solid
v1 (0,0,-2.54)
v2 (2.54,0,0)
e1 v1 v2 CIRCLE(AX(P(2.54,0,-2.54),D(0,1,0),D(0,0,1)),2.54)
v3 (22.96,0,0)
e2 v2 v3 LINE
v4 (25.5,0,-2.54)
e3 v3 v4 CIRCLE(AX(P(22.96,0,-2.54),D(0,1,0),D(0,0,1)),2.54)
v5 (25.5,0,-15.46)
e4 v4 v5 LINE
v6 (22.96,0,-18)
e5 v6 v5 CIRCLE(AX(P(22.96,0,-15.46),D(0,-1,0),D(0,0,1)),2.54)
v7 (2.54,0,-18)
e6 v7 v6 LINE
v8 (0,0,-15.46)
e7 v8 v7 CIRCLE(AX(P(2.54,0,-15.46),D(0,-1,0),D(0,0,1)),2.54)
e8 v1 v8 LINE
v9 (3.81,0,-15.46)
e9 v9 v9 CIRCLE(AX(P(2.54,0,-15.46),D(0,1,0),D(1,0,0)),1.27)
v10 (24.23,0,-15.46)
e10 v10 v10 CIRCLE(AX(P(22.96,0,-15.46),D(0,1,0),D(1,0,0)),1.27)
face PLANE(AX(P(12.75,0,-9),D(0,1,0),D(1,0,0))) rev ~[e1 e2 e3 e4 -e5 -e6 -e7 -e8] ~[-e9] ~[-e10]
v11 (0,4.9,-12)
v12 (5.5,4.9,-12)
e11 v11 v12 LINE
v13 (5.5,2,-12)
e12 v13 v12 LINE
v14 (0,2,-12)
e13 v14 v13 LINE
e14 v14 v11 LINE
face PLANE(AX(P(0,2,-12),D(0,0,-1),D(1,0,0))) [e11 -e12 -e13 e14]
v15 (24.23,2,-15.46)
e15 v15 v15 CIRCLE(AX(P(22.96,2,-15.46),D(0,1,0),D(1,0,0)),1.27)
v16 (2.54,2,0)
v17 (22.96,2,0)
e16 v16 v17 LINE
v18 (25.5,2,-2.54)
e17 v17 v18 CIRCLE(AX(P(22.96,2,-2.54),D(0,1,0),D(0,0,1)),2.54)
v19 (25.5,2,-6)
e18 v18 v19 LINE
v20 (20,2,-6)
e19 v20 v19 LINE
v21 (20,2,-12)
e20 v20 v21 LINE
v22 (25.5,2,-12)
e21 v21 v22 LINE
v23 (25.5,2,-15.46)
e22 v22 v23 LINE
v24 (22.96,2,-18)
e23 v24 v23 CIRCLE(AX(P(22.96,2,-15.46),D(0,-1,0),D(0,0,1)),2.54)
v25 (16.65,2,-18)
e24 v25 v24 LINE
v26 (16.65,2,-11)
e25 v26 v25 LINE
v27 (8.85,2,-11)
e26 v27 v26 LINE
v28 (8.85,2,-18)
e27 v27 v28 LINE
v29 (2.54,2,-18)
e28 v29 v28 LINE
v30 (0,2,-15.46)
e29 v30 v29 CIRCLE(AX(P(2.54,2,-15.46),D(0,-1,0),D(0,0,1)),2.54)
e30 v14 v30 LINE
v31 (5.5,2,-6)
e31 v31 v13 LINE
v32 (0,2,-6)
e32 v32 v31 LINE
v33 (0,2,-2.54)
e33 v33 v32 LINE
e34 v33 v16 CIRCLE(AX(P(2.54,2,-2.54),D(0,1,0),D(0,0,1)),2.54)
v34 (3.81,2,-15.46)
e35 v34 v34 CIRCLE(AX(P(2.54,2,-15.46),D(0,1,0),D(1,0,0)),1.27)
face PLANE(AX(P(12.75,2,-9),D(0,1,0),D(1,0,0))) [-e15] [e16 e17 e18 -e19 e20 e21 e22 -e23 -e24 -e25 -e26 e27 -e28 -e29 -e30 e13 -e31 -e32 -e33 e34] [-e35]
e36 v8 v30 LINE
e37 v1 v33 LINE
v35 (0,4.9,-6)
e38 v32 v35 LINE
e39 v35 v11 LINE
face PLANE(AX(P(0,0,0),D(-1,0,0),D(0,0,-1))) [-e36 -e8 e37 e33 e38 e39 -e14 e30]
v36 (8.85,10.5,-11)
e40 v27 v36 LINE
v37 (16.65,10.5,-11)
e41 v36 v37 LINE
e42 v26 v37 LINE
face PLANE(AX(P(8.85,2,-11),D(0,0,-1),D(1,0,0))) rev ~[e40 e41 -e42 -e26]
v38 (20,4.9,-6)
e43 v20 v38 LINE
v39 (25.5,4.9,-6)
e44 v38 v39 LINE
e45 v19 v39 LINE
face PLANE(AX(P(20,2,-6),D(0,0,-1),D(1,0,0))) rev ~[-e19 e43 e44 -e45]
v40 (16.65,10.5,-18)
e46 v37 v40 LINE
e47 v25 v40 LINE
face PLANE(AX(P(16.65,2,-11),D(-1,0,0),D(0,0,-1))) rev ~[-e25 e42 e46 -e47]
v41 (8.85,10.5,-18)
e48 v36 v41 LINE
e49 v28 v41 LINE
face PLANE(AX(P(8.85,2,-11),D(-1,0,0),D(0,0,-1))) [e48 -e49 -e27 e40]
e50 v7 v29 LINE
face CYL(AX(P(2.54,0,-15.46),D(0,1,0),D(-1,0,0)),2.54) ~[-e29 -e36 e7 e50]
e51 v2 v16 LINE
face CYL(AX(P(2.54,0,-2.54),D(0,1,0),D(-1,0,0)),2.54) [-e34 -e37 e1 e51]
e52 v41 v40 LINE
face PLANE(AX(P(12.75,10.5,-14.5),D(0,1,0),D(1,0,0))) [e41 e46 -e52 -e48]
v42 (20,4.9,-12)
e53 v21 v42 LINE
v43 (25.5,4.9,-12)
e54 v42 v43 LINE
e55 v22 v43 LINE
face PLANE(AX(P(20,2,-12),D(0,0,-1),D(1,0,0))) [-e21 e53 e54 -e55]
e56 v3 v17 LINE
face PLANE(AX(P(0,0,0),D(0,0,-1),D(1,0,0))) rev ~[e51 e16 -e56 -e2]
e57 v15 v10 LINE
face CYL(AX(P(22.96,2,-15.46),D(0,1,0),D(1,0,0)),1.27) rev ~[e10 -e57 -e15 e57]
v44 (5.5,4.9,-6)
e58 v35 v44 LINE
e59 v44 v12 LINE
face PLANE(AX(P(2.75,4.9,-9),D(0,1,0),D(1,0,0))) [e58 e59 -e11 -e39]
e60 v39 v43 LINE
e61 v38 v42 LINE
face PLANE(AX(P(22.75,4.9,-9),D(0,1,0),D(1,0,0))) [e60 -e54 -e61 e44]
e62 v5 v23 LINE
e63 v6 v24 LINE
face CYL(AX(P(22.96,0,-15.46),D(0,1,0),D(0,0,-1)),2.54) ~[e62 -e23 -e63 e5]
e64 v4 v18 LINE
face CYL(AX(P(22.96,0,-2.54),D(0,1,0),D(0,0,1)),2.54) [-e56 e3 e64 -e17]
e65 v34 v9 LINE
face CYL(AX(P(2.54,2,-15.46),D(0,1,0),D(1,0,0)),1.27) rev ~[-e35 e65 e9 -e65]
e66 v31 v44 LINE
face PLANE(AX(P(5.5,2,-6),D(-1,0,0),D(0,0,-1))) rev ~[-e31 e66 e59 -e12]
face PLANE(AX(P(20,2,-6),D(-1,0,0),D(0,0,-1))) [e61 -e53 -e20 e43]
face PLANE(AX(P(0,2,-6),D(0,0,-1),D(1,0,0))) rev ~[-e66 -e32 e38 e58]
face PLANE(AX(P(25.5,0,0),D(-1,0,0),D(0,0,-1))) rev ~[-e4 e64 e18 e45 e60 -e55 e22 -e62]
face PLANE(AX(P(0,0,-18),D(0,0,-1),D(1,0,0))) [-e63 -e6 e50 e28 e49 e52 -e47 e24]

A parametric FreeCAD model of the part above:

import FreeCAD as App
import Part
import Sketcher
from FreeCAD import Vector
Q = App.Units.Quantity


def edges_at(feature, points):
    """Names of the edges that pass closest to the given points."""
    edges = feature.Shape.Edges
    near = lambda p: min(range(len(edges)), key=lambda i: edges[i].distToShape(Part.Vertex(*p))[0])
    return sorted({f"Edge{near(p) + 1}" for p in points})

doc = App.newDocument("Part")
params = doc.addObject("Spreadsheet::Sheet", "Params")
for row, (alias, value) in enumerate([
    ("sketch1_height", "18 mm"),
    ("sketch1_width", "25.5 mm"),
    ("pad1_length", "2 mm"),
    ("sketch2_diameter", "2.54 mm"),
    ("sketch3_height", "6 mm"),
    ("sketch3_width", "5.5 mm"),
    ("pad2_length", "2.9 mm"),
    ("sketch4_height", "7 mm"),
    ("sketch4_width", "7.8 mm"),
    ("pad3_length", "8.5 mm"),
    ("fillet_radius", "2.54 mm"),
], start=1):
    params.set(f"A{row}", alias)
    params.set(f"B{row}", "=" + value)
    params.setAlias(f"B{row}", alias)

body = doc.addObject("PartDesign::Body", "Body")

# Sketch on XZ plane
sketch1 = body.newObject("Sketcher::SketchObject", "Sketch")
sketch1.AttachmentSupport = (doc.getObject("XZ_Plane"), [""])
sketch1.MapMode = "FlatFace"
sketch1.addGeometry([
    Part.LineSegment(Vector(0, -18, 0), Vector(0, 0, 0)),
    Part.LineSegment(Vector(0, 0, 0), Vector(25.5, 0, 0)),
    Part.LineSegment(Vector(25.5, 0, 0), Vector(25.5, -18, 0)),
    Part.LineSegment(Vector(25.5, -18, 0), Vector(0, -18, 0)),
], False)
sketch1.addConstraint([
    Sketcher.Constraint("Coincident", 0, 2, 1, 1),
    Sketcher.Constraint("Coincident", 1, 2, 2, 1),
    Sketcher.Constraint("Coincident", 2, 2, 3, 1),
    Sketcher.Constraint("Coincident", 3, 2, 0, 1),
    Sketcher.Constraint("Vertical", 0),
    Sketcher.Constraint("Horizontal", 1),
    Sketcher.Constraint("Vertical", 2),
    Sketcher.Constraint("Horizontal", 3),
    Sketcher.Constraint("Coincident", 0, 2, -1, 1),
    Sketcher.Constraint("DistanceY", 0, 1, 0, 2, Q("18 mm")),
    Sketcher.Constraint("DistanceX", 1, 1, 1, 2, Q("25.5 mm")),
])
sketch1.setExpression("Constraints[9]", "Params.sketch1_height")
sketch1.setExpression("Constraints[10]", "Params.sketch1_width")
pad1 = body.newObject("PartDesign::Pad", "Pad")
pad1.Profile = sketch1
pad1.setExpression("Length", "Params.pad1_length")
pad1.Reversed = True

# Sketch on XZ plane
sketch2 = body.newObject("Sketcher::SketchObject", "Sketch001")
sketch2.AttachmentSupport = (doc.getObject("XZ_Plane"), [""])
sketch2.MapMode = "FlatFace"
sketch2.AttachmentOffset = App.Placement(Vector(0, 0, -2), App.Rotation())
sketch2.addGeometry([
    Part.Circle(Vector(2.54, -15.46, 0), Vector(0, 0, 1), 1.27),
    Part.Circle(Vector(22.96, -15.46, 0), Vector(0, 0, 1), 1.27),
], False)
sketch2.addConstraint([
    Sketcher.Constraint("Equal", 0, 1),
    Sketcher.Constraint("Horizontal", 0, 3, 1, 3),
    Sketcher.Constraint("Diameter", 0, Q("2.54 mm")),
    Sketcher.Constraint("DistanceX", -1, 1, 0, 3, Q("2.54 mm")),
    Sketcher.Constraint("DistanceY", 0, 3, -1, 1, Q("15.46 mm")),
    Sketcher.Constraint("DistanceX", -1, 1, 1, 3, Q("22.96 mm")),
])
sketch2.setExpression("Constraints[2]", "Params.sketch2_diameter")
pocket1 = body.newObject("PartDesign::Pocket", "Pocket")
pocket1.Profile = sketch2
pocket1.Type = "ThroughAll"
pocket1.Reversed = True

# Sketch on XZ plane
sketch3 = body.newObject("Sketcher::SketchObject", "Sketch002")
sketch3.AttachmentSupport = (doc.getObject("XZ_Plane"), [""])
sketch3.MapMode = "FlatFace"
sketch3.AttachmentOffset = App.Placement(Vector(0, 0, -2), App.Rotation())
sketch3.addGeometry([
    Part.LineSegment(Vector(0, -12, 0), Vector(0, -6, 0)),  # 0
    Part.LineSegment(Vector(0, -6, 0), Vector(5.5, -6, 0)),  # 1
    Part.LineSegment(Vector(5.5, -6, 0), Vector(5.5, -12, 0)),  # 2
    Part.LineSegment(Vector(5.5, -12, 0), Vector(0, -12, 0)),  # 3
    Part.LineSegment(Vector(20, -12, 0), Vector(20, -6, 0)),  # 4
    Part.LineSegment(Vector(20, -6, 0), Vector(25.5, -6, 0)),  # 5
    Part.LineSegment(Vector(25.5, -6, 0), Vector(25.5, -12, 0)),  # 6
    Part.LineSegment(Vector(25.5, -12, 0), Vector(20, -12, 0)),  # 7
], False)
sketch3.addConstraint([
    Sketcher.Constraint("Coincident", 0, 2, 1, 1),
    Sketcher.Constraint("Coincident", 1, 2, 2, 1),
    Sketcher.Constraint("Coincident", 2, 2, 3, 1),
    Sketcher.Constraint("Coincident", 3, 2, 0, 1),
    Sketcher.Constraint("Coincident", 4, 2, 5, 1),
    Sketcher.Constraint("Coincident", 5, 2, 6, 1),
    Sketcher.Constraint("Coincident", 6, 2, 7, 1),
    Sketcher.Constraint("Coincident", 7, 2, 4, 1),
    Sketcher.Constraint("Vertical", 0),
    Sketcher.Constraint("Horizontal", 1),
    Sketcher.Constraint("Vertical", 2),
    Sketcher.Constraint("Horizontal", 3),
    Sketcher.Constraint("Vertical", 4),
    Sketcher.Constraint("Horizontal", 5),
    Sketcher.Constraint("Vertical", 6),
    Sketcher.Constraint("Horizontal", 7),
    Sketcher.Constraint("PointOnObject", 0, 2, -2),
    Sketcher.Constraint("Horizontal", 1, 2, 4, 2),
    Sketcher.Constraint("Horizontal", 3, 2, 6, 2),
    Sketcher.Constraint("Equal", 3, 5),
    Sketcher.Constraint("DistanceY", 0, 1, 0, 2, Q("6 mm")),
    Sketcher.Constraint("DistanceX", 1, 1, 1, 2, Q("5.5 mm")),
    Sketcher.Constraint("DistanceY", 0, 2, -1, 1, Q("6 mm")),
    Sketcher.Constraint("DistanceX", -1, 1, 4, 2, Q("20 mm")),
])
sketch3.setExpression("Constraints[20]", "Params.sketch3_height")
sketch3.setExpression("Constraints[21]", "Params.sketch3_width")
pad2 = body.newObject("PartDesign::Pad", "Pad001")
pad2.Profile = sketch3
pad2.setExpression("Length", "Params.pad2_length")
pad2.Reversed = True

# Sketch on XZ plane
sketch4 = body.newObject("Sketcher::SketchObject", "Sketch003")
sketch4.AttachmentSupport = (doc.getObject("XZ_Plane"), [""])
sketch4.MapMode = "FlatFace"
sketch4.AttachmentOffset = App.Placement(Vector(0, 0, -2), App.Rotation())
sketch4.addGeometry([
    Part.LineSegment(Vector(8.85, -18, 0), Vector(8.85, -11, 0)),
    Part.LineSegment(Vector(8.85, -11, 0), Vector(16.65, -11, 0)),
    Part.LineSegment(Vector(16.65, -11, 0), Vector(16.65, -18, 0)),
    Part.LineSegment(Vector(16.65, -18, 0), Vector(8.85, -18, 0)),
], False)
sketch4.addConstraint([
    Sketcher.Constraint("Coincident", 0, 2, 1, 1),
    Sketcher.Constraint("Coincident", 1, 2, 2, 1),
    Sketcher.Constraint("Coincident", 2, 2, 3, 1),
    Sketcher.Constraint("Coincident", 3, 2, 0, 1),
    Sketcher.Constraint("Vertical", 0),
    Sketcher.Constraint("Horizontal", 1),
    Sketcher.Constraint("Vertical", 2),
    Sketcher.Constraint("Horizontal", 3),
    Sketcher.Constraint("DistanceY", 0, 1, 0, 2, Q("7 mm")),
    Sketcher.Constraint("DistanceX", 1, 1, 1, 2, Q("7.8 mm")),
    Sketcher.Constraint("DistanceY", 0, 2, -1, 1, Q("11 mm")),
    Sketcher.Constraint("DistanceX", -1, 1, 0, 2, Q("8.85 mm")),
])
sketch4.setExpression("Constraints[8]", "Params.sketch4_height")
sketch4.setExpression("Constraints[9]", "Params.sketch4_width")
pad3 = body.newObject("PartDesign::Pad", "Pad002")
pad3.Profile = sketch4
pad3.setExpression("Length", "Params.pad3_length")
pad3.Reversed = True
doc.recompute()

fillet = body.newObject("PartDesign::Fillet", "Fillet")
fillet.Base = (pad3, edges_at(pad3, [
    (0, 1, -18),
    (25.5, 1, -18),
    (25.5, 1, 0),
    (0, 1, 0),
]))
fillet.setExpression("Radius", "Params.fillet_radius")

doc.recompute()
